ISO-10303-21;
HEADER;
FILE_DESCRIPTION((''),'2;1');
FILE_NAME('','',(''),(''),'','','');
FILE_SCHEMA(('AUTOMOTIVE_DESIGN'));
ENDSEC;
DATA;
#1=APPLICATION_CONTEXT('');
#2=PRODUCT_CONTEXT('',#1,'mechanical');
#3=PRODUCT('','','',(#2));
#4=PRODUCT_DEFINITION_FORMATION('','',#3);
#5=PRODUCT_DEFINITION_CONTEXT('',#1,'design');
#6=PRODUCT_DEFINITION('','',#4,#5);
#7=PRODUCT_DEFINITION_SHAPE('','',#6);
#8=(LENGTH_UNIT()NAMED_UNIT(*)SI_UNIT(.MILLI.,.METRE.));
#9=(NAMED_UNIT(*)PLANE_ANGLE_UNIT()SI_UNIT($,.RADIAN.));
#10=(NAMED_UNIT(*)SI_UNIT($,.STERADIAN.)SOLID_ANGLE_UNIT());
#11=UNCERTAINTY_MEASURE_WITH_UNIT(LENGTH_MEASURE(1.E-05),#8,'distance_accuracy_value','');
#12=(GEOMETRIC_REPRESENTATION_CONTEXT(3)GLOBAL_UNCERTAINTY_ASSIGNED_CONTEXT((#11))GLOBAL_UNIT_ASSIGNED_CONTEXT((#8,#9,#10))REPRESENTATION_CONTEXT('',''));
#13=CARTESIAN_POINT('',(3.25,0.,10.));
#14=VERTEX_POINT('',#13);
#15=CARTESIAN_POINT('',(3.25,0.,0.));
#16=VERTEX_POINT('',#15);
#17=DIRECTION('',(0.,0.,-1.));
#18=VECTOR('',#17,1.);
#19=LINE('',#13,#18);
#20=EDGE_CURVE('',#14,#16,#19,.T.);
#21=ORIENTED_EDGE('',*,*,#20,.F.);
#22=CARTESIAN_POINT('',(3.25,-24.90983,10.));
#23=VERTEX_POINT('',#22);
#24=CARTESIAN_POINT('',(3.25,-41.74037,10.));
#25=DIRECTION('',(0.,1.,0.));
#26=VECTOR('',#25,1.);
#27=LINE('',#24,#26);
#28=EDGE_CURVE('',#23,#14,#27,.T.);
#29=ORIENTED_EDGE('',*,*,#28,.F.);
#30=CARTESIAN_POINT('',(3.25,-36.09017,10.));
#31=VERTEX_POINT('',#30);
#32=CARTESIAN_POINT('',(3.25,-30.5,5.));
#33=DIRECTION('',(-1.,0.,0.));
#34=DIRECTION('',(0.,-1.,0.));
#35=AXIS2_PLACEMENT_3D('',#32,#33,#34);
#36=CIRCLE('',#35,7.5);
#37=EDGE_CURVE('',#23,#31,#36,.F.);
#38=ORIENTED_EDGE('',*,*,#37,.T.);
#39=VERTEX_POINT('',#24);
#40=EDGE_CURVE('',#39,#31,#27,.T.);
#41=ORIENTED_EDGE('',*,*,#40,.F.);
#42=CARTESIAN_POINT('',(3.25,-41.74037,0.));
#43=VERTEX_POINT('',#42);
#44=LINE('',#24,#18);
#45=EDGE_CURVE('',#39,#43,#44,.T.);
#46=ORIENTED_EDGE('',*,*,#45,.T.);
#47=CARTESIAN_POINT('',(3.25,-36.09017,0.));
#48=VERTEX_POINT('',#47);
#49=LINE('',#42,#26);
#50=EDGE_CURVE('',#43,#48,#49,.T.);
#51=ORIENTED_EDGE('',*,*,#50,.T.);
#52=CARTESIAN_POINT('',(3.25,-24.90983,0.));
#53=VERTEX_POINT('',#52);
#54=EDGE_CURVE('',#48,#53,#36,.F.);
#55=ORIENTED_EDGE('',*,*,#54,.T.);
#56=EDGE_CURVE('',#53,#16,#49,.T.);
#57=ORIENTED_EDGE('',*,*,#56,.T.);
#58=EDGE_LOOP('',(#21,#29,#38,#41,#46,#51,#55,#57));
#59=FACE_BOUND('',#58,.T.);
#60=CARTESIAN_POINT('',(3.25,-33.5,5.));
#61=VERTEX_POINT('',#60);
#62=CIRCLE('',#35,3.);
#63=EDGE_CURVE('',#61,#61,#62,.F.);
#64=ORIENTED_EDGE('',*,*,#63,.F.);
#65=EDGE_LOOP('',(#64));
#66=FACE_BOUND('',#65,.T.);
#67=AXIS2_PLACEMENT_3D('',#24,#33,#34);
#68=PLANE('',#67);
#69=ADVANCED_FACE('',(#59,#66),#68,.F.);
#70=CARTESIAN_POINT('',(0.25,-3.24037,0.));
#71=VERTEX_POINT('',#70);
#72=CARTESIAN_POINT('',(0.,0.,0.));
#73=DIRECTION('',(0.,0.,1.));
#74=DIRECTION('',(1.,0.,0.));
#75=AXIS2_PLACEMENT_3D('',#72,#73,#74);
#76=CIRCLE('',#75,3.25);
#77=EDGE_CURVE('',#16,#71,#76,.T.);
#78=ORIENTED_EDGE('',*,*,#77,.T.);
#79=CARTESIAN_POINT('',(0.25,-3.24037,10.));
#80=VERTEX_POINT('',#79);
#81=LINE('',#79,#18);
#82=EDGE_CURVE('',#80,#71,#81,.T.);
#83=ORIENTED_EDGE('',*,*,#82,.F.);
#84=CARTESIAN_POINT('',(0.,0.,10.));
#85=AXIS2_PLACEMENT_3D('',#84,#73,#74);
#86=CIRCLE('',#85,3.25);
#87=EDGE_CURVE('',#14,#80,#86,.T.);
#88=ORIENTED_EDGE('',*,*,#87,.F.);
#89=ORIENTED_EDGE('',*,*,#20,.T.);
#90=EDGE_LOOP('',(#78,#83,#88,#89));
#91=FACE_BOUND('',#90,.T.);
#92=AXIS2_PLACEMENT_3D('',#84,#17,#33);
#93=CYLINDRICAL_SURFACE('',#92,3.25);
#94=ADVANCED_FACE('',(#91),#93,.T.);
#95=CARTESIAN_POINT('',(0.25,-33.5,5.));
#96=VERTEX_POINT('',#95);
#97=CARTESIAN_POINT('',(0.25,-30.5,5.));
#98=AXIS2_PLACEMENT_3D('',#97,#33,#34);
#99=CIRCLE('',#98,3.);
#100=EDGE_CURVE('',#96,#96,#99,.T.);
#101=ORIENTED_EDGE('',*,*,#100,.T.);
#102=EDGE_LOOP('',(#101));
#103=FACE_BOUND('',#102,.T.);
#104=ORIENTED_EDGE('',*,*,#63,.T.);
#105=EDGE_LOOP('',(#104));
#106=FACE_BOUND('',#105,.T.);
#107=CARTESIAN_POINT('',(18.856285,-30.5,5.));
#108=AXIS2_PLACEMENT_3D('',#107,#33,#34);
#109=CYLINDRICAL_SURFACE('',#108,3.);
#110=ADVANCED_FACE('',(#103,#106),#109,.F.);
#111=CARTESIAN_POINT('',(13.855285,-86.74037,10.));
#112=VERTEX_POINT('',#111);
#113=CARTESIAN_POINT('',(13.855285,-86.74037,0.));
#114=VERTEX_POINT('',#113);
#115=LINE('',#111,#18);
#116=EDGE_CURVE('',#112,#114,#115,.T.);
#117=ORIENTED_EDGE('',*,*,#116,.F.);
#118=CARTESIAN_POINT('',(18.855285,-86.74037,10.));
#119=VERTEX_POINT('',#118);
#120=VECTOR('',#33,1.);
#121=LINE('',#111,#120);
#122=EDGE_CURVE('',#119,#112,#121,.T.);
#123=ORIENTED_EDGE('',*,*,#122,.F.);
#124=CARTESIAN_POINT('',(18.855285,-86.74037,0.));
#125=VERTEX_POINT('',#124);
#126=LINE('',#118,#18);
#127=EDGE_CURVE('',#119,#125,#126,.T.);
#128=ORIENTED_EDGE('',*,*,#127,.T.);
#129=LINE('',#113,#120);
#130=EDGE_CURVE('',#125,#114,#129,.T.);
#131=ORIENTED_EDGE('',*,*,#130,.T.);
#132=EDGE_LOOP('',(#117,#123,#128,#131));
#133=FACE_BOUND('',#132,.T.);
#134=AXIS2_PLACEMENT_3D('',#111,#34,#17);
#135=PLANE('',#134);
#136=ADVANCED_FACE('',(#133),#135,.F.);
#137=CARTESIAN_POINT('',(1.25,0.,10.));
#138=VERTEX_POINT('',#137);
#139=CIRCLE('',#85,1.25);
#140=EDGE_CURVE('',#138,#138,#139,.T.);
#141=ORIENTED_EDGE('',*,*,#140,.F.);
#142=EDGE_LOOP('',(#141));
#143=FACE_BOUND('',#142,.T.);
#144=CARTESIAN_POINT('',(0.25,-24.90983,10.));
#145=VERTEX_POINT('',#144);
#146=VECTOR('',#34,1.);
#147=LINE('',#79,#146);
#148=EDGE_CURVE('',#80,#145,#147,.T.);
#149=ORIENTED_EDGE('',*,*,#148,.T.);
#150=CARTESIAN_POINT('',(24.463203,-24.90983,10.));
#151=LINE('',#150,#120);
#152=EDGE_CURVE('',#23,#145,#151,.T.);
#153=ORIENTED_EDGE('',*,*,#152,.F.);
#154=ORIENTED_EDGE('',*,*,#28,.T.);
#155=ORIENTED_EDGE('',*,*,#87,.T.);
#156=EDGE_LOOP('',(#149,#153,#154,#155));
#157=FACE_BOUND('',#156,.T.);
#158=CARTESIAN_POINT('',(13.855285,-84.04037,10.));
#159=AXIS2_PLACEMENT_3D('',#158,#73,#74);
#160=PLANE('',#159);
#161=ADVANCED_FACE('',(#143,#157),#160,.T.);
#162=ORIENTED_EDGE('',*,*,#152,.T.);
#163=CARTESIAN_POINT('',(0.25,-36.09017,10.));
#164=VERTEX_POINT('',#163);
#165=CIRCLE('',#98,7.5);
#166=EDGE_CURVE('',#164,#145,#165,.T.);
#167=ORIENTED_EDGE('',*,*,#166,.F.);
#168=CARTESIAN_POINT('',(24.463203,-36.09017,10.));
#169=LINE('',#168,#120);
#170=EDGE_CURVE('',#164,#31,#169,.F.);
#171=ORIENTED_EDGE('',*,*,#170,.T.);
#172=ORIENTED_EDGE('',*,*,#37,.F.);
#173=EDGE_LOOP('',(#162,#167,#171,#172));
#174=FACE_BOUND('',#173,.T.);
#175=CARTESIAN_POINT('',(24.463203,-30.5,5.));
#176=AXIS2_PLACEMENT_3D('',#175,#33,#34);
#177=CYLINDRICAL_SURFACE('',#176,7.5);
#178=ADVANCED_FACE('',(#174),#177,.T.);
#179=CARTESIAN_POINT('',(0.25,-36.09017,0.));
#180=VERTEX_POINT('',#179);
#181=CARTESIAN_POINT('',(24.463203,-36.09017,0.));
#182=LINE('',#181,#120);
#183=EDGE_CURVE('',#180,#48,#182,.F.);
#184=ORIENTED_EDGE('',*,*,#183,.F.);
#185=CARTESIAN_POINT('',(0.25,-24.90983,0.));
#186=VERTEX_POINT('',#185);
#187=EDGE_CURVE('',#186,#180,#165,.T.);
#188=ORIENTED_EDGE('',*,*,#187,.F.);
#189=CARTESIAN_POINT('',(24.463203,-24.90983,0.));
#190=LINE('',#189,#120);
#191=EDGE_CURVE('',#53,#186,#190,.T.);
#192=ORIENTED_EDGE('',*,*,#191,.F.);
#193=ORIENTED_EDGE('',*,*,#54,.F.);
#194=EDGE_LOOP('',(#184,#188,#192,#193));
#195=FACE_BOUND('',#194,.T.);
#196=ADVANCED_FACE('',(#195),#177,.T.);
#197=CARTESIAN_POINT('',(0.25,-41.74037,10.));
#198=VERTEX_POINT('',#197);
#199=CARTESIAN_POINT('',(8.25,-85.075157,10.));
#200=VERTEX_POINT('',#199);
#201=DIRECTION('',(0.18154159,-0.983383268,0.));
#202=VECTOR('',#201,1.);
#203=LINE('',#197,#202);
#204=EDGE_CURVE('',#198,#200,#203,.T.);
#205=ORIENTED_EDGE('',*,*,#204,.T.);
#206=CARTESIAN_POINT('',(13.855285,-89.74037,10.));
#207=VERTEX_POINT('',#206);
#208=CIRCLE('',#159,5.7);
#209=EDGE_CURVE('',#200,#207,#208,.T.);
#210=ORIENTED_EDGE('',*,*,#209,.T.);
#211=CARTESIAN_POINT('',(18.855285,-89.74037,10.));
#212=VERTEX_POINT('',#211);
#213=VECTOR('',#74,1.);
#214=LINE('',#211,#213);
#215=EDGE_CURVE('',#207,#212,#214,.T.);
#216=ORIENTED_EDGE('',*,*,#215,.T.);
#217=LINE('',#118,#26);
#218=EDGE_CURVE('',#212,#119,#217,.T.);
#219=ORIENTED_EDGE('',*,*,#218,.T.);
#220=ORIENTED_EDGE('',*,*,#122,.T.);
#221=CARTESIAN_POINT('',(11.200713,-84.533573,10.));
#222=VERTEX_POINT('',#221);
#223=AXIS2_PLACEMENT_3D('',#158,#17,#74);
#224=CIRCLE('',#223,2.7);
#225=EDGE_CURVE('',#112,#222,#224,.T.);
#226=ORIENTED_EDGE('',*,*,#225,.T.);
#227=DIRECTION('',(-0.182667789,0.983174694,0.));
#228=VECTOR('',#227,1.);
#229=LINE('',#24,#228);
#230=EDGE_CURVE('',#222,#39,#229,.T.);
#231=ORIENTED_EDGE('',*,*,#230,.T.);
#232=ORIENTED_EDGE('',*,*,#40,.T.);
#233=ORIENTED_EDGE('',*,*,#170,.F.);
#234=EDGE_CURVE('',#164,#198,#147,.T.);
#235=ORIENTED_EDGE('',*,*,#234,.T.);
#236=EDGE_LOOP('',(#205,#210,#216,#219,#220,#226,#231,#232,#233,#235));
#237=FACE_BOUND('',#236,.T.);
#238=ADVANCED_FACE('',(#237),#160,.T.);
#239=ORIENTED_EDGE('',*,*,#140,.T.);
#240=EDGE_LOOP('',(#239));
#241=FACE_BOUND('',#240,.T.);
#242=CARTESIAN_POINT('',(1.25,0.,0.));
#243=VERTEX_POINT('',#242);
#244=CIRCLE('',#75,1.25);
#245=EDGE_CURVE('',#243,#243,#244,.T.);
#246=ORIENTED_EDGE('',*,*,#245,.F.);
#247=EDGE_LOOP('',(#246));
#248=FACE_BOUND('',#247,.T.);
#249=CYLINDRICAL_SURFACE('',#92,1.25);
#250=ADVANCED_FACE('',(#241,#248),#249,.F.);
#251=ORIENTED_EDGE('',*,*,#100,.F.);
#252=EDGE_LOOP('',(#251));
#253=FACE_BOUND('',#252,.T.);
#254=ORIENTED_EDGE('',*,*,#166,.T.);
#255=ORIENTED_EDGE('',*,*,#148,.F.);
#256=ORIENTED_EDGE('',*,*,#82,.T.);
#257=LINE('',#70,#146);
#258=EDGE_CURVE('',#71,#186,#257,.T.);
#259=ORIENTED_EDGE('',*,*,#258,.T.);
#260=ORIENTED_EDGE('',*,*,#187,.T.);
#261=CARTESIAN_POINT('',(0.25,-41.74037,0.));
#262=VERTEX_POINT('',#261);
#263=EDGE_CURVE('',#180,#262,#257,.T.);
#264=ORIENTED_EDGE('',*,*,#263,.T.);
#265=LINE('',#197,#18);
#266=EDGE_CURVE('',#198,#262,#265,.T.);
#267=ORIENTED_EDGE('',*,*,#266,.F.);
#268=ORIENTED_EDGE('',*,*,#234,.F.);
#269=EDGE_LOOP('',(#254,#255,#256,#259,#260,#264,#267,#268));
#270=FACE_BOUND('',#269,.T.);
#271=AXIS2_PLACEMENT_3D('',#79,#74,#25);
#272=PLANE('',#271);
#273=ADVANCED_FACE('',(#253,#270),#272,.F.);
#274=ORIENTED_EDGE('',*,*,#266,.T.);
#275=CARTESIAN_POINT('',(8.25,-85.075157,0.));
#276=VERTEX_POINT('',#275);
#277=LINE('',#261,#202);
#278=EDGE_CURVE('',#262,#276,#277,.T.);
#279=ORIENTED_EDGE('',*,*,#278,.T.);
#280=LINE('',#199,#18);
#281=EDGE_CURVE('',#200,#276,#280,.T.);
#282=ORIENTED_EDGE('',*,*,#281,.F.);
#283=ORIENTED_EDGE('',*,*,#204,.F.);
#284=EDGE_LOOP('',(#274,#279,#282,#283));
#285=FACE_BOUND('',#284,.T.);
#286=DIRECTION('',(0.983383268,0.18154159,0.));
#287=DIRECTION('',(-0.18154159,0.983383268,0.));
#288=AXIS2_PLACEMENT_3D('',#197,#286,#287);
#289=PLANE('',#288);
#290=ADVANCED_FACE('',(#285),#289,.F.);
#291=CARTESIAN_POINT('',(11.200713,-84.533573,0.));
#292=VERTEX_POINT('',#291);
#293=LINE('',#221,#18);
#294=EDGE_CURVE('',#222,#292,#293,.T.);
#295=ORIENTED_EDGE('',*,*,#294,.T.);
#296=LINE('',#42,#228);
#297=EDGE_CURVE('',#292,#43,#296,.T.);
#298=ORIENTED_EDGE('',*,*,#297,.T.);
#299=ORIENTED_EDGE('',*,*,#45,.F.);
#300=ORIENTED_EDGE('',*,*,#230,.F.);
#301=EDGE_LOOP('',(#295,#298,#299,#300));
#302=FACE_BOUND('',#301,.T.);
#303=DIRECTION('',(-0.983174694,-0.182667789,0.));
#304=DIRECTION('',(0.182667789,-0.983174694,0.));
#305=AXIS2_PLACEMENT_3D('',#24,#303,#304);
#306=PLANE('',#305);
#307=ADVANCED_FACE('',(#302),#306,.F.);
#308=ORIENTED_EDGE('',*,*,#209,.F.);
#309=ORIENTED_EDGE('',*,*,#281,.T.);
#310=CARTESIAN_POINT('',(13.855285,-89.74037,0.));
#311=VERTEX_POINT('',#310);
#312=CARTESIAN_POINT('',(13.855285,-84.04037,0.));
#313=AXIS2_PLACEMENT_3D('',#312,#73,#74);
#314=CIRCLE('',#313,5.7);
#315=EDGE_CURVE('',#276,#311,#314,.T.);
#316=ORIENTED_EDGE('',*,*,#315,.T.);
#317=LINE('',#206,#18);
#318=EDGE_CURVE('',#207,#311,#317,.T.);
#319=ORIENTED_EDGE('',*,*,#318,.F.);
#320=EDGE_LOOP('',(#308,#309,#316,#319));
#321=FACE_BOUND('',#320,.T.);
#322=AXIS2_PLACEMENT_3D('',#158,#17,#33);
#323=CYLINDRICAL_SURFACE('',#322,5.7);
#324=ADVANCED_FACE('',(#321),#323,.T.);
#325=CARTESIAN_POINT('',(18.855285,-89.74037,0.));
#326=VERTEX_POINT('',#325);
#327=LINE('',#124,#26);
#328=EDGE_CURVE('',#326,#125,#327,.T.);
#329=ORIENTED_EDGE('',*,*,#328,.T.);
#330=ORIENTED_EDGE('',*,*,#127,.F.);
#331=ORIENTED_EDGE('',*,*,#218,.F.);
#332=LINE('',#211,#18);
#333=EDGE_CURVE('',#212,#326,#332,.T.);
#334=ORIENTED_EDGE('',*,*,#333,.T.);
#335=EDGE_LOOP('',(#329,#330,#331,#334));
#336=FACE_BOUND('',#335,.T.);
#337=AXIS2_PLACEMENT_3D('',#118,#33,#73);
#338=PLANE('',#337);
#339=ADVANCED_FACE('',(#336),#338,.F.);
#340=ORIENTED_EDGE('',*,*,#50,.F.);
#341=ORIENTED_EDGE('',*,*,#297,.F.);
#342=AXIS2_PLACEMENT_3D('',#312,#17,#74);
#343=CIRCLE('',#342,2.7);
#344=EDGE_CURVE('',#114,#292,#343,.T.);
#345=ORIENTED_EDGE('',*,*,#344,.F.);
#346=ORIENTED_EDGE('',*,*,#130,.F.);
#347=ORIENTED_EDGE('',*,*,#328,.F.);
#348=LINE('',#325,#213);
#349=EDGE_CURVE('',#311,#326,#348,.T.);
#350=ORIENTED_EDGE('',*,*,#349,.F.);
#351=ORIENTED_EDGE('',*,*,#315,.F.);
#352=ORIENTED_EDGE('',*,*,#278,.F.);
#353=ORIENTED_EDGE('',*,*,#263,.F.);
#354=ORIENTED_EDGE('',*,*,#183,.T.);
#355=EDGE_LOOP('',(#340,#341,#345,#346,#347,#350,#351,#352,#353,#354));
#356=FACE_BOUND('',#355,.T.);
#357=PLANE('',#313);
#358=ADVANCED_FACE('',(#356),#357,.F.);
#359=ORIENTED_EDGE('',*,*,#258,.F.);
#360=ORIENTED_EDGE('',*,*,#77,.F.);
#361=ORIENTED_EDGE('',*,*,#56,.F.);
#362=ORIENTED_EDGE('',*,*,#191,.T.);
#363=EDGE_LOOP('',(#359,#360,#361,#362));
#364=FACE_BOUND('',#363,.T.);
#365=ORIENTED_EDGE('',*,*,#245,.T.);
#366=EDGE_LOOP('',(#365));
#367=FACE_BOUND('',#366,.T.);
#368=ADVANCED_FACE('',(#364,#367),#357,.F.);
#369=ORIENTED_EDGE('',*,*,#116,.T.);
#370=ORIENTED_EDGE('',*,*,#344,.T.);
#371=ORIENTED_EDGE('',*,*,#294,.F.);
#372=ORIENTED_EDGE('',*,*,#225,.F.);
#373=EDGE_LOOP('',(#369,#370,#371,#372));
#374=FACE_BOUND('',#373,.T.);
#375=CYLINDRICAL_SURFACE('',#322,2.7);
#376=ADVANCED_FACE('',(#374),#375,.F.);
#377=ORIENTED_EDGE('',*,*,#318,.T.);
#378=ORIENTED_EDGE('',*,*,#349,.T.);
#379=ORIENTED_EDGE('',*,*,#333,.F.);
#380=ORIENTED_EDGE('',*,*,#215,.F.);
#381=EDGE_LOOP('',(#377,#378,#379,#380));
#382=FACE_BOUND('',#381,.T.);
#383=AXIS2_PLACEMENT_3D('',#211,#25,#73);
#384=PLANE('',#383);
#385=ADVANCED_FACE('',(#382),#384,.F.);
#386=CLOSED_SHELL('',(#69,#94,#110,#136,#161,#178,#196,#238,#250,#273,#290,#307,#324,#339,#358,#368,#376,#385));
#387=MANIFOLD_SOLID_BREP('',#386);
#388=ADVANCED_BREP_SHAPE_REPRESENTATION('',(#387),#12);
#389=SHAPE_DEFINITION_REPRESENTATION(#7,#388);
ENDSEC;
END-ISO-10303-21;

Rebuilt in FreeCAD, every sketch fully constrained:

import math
import FreeCAD as App
import Part
import Sketcher
from FreeCAD import Vector
Q = App.Units.Quantity

doc = App.newDocument("Part")
params = doc.addObject("Spreadsheet::Sheet", "Params")
for row, (alias, value) in enumerate([
    ("sketch1_diameter", "2.5 mm"),
    ("sketch1_radius", "5.7 mm"),
    ("sketch1_radius2", "2.7 mm"),
    ("sketch1_width", "5 mm"),
    ("sketch1_radius3", "3.25 mm"),
    ("pad1_length", "10 mm"),
    ("sketch2_diameter", "6 mm"),
    ("sketch3_diameter", "15 mm"),
    ("sketch3_diameter2", "6 mm"),
    ("pad2_length", "3 mm"),
], start=1):
    params.set(f"A{row}", alias)
    params.set(f"B{row}", "=" + value)
    params.setAlias(f"B{row}", alias)

body = doc.addObject("PartDesign::Body", "Body")

# Sketch on XY plane
sketch1 = body.newObject("Sketcher::SketchObject", "Sketch")
sketch1.AttachmentSupport = (doc.getObject("XY_Plane"), [""])
sketch1.MapMode = "FlatFace"
sketch1.addGeometry([
    Part.LineSegment(Vector(0.2, -3.2, 0), Vector(0.2, -41.7, 0)),  # 0
    Part.LineSegment(Vector(0.2, -41.7, 0), Vector(8.2, -85.1, 0)),  # 1
    Part.ArcOfCircle(Part.Circle(Vector(13.9, -84, 0), Vector(0, 0, 1), 5.7), math.radians(-170), math.radians(-90)),  # 2
    Part.LineSegment(Vector(13.9, -89.7, 0), Vector(18.9, -89.7, 0)),  # 3
    Part.LineSegment(Vector(18.9, -89.7, 0), Vector(18.9, -86.7, 0)),  # 4
    Part.LineSegment(Vector(18.9, -86.7, 0), Vector(13.9, -86.7, 0)),  # 5
    Part.ArcOfCircle(Part.Circle(Vector(13.9, -84, 0), Vector(0, 0, 1), 2.7), math.radians(-169), math.radians(-90)),  # 6
    Part.LineSegment(Vector(11.2, -84.5, 0), Vector(3.2, -41.7, 0)),  # 7
    Part.LineSegment(Vector(3.2, -41.7, 0), Vector(3.2, 0, 0)),  # 8
    Part.ArcOfCircle(Part.Circle(Vector(0, 0, 0), Vector(0, 0, 1), 3.2), math.radians(0), math.radians(274)),  # 9
    Part.Circle(Vector(0, 0, 0), Vector(0, 0, 1), 1.2),  # 10
], False)
sketch1.addConstraint([
    Sketcher.Constraint("Coincident", 0, 2, 1, 1),
    Sketcher.Constraint("Tangent", 1, 2, 2, 1),
    Sketcher.Constraint("Tangent", 2, 2, 3, 1),
    Sketcher.Constraint("Coincident", 3, 2, 4, 1),
    Sketcher.Constraint("Coincident", 4, 2, 5, 1),
    Sketcher.Constraint("Tangent", 5, 2, 6, 2),
    Sketcher.Constraint("Tangent", 6, 1, 7, 1),
    Sketcher.Constraint("Coincident", 7, 2, 8, 1),
    Sketcher.Constraint("Tangent", 8, 2, 9, 1),
    Sketcher.Constraint("Coincident", 9, 2, 0, 1),
    Sketcher.Constraint("Vertical", 0),
    Sketcher.Constraint("Horizontal", 3),
    Sketcher.Constraint("Vertical", 4),
    Sketcher.Constraint("Horizontal", 5),
    Sketcher.Constraint("Vertical", 8),
    Sketcher.Constraint("Coincident", 9, 3, -1, 1),
    Sketcher.Constraint("Coincident", 10, 3, -1, 1),
    Sketcher.Constraint("Coincident", 6, 3, 2, 3),
    Sketcher.Constraint("Horizontal", 0, 2, 7, 2),
    Sketcher.Constraint("Diameter", 10, Q("2.5 mm")),
    Sketcher.Constraint("Radius", 2, Q("5.7 mm")),
    Sketcher.Constraint("Radius", 6, Q("2.7 mm")),
    Sketcher.Constraint("DistanceX", 3, 1, 3, 2, Q("5 mm")),
    Sketcher.Constraint("Radius", 9, Q("3.25 mm")),
    Sketcher.Constraint("DistanceY", 0, 2, 0, 1, Q("38.5 mm")),
    Sketcher.Constraint("DistanceX", 0, 2, 1, 2, Q("8 mm")),
    Sketcher.Constraint("DistanceY", 2, 2, 0, 2, Q("48 mm")),
    Sketcher.Constraint("DistanceX", 0, 2, 7, 2, Q("3 mm")),
])
sketch1.setExpression("Constraints[19]", "Params.sketch1_diameter")
sketch1.setExpression("Constraints[20]", "Params.sketch1_radius")
sketch1.setExpression("Constraints[21]", "Params.sketch1_radius2")
sketch1.setExpression("Constraints[22]", "Params.sketch1_width")
sketch1.setExpression("Constraints[23]", "Params.sketch1_radius3")
pad1 = body.newObject("PartDesign::Pad", "Pad")
pad1.Profile = sketch1
pad1.setExpression("Length", "Params.pad1_length")

# Sketch on YZ plane
sketch2 = body.newObject("Sketcher::SketchObject", "Sketch001")
sketch2.AttachmentSupport = (doc.getObject("YZ_Plane"), [""])
sketch2.MapMode = "FlatFace"
sketch2.AttachmentOffset = App.Placement(Vector(0, 0, 0.25), App.Rotation())
sketch2.addGeometry(Part.Circle(Vector(-30.5, 5, 0), Vector(0, 0, 1), 3), False)
sketch2.addConstraint([
    Sketcher.Constraint("Diameter", 0, Q("6 mm")),
    Sketcher.Constraint("DistanceY", -1, 1, 0, 3, Q("5 mm")),
    Sketcher.Constraint("DistanceX", 0, 3, -1, 1, Q("30.5 mm")),
])
sketch2.setExpression("Constraints[0]", "Params.sketch2_diameter")
pocket1 = body.newObject("PartDesign::Pocket", "Pocket")
pocket1.Profile = sketch2
pocket1.Type = "UpToFirst"
pocket1.Reversed = True

# Sketch on YZ plane
sketch3 = body.newObject("Sketcher::SketchObject", "Sketch002")
sketch3.AttachmentSupport = (doc.getObject("YZ_Plane"), [""])
sketch3.MapMode = "FlatFace"
sketch3.AttachmentOffset = App.Placement(Vector(0, 0, 0.25), App.Rotation())
sketch3.addGeometry([
    Part.Circle(Vector(-30.5, 5, 0), Vector(0, 0, 1), 7.5),
    Part.Circle(Vector(-30.5, 5, 0), Vector(0, 0, 1), 3),
], False)
sketch3.addConstraint([
    Sketcher.Constraint("Coincident", 1, 3, 0, 3),
    Sketcher.Constraint("Diameter", 0, Q("15 mm")),
    Sketcher.Constraint("Diameter", 1, Q("6 mm")),
    Sketcher.Constraint("DistanceY", -1, 1, 0, 3, Q("5 mm")),
    Sketcher.Constraint("DistanceX", 0, 3, -1, 1, Q("30.5 mm")),
])
sketch3.setExpression("Constraints[1]", "Params.sketch3_diameter")
sketch3.setExpression("Constraints[2]", "Params.sketch3_diameter2")
pad2 = body.newObject("PartDesign::Pad", "Pad001")
pad2.Profile = sketch3
pad2.setExpression("Length", "Params.pad2_length")

doc.recompute()
